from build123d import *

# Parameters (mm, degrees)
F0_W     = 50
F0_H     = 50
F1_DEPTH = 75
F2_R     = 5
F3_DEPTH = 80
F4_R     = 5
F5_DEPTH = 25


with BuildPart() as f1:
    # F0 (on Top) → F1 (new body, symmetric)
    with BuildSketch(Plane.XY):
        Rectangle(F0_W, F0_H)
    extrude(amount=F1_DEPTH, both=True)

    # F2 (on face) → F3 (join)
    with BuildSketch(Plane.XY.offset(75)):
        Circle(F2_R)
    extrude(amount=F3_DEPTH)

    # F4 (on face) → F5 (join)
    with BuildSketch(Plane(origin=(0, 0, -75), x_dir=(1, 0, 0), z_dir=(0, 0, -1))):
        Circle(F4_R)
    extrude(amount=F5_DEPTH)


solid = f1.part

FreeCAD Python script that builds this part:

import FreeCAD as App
import Part
import Sketcher

V = App.Vector

doc = App.newDocument("Part")
body = doc.addObject("PartDesign::Body", "Body")

# Sketch on XY plane
sketch1 = body.newObject("Sketcher::SketchObject", "Sketch")
sketch1.AttachmentSupport = (doc.getObject("XY_Plane"), [""])
sketch1.MapMode = "FlatFace"
sketch1.addGeometry([
    Part.LineSegment(V(-25, 25, 0), V(-25, -25, 0)),
    Part.LineSegment(V(-25, -25, 0), V(25, -25, 0)),
    Part.LineSegment(V(25, -25, 0), V(25, 25, 0)),
    Part.LineSegment(V(25, 25, 0), V(-25, 25, 0)),
], False)
sketch1.addConstraint([
    Sketcher.Constraint("Coincident", 0, 2, 1, 1),
    Sketcher.Constraint("Coincident", 1, 2, 2, 1),
    Sketcher.Constraint("Coincident", 2, 2, 3, 1),
    Sketcher.Constraint("Coincident", 3, 2, 0, 1),
    Sketcher.Constraint("Vertical", 0),
    Sketcher.Constraint("Horizontal", 1),
    Sketcher.Constraint("Vertical", 2),
    Sketcher.Constraint("Horizontal", 3),
    Sketcher.Constraint("Symmetric", 0, 2, 2, 2, -1, 1),
    Sketcher.Constraint("Equal", 3, 0),
    Sketcher.Constraint("DistanceX", 1, 1, 1, 2, 50.0),
])
pad1 = body.newObject("PartDesign::Pad", "Pad")
pad1.Profile = sketch1
pad1.Length = 150
pad1.Midplane = True

# Sketch on XY plane
sketch2 = body.newObject("Sketcher::SketchObject", "Sketch001")
sketch2.AttachmentSupport = (doc.getObject("XY_Plane"), [""])
sketch2.MapMode = "FlatFace"
sketch2.AttachmentOffset = App.Placement(V(0, 0, 75), App.Rotation())
sketch2.addGeometry(Part.Circle(V(0, 0, 0), V(0, 0, 1), 5), False)
sketch2.addConstraint([
    Sketcher.Constraint("Coincident", 0, 3, -1, 1),
    Sketcher.Constraint("Diameter", 0, 10.0),
])
pad2 = body.newObject("PartDesign::Pad", "Pad001")
pad2.Profile = sketch2
pad2.Length = 80

# Sketch on XY plane
sketch3 = body.newObject("Sketcher::SketchObject", "Sketch002")
sketch3.AttachmentSupport = (doc.getObject("XY_Plane"), [""])
sketch3.MapMode = "FlatFace"
sketch3.AttachmentOffset = App.Placement(V(0, 0, -75), App.Rotation())
sketch3.addGeometry(Part.Circle(V(0, 0, 0), V(0, 0, 1), 5), False)
sketch3.addConstraint([
    Sketcher.Constraint("Coincident", 0, 3, -1, 1),
    Sketcher.Constraint("Diameter", 0, 10.0),
])
pad3 = body.newObject("PartDesign::Pad", "Pad002")
pad3.Profile = sketch3
pad3.Length = 25
pad3.Reversed = True

doc.recompute()
